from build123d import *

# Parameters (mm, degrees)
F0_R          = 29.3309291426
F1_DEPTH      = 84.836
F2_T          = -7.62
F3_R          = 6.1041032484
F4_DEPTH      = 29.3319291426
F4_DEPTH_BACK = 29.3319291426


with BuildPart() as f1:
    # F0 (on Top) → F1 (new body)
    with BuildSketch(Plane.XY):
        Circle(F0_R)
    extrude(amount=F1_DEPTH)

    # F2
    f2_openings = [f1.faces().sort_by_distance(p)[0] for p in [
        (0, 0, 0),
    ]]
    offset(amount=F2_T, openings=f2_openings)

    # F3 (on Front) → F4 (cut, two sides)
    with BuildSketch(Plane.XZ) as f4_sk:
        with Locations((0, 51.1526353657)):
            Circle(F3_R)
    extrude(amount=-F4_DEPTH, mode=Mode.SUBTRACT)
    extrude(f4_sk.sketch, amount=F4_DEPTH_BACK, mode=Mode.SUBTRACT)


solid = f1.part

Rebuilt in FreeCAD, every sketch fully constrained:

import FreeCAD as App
import Part
import Sketcher
from FreeCAD import Vector
Q = App.Units.Quantity


def faces_at(feature, points):
    """Names of the faces that lie closest to the given points."""
    faces = feature.Shape.Faces
    near = lambda p: min(range(len(faces)), key=lambda i: faces[i].distToShape(Part.Vertex(*p))[0])
    return sorted({f"Face{near(p) + 1}" for p in points})

doc = App.newDocument("Part")
params = doc.addObject("Spreadsheet::Sheet", "Params")
for row, (alias, value) in enumerate([
    ("pad1_length", "3.34 in"),
    ("thickness_wall", "0.3 in"),
], start=1):
    params.set(f"A{row}", alias)
    params.set(f"B{row}", "=" + value)
    params.setAlias(f"B{row}", alias)

body = doc.addObject("PartDesign::Body", "Body")

# Sketch on XY plane
sketch1 = body.newObject("Sketcher::SketchObject", "Sketch")
sketch1.AttachmentSupport = (doc.getObject("XY_Plane"), [""])
sketch1.MapMode = "FlatFace"
sketch1.addGeometry(Part.Circle(Vector(0, 0, 0), Vector(0, 0, 1), 29), False)
sketch1.addConstraint([
    Sketcher.Constraint("Coincident", 0, 3, -1, 1),
    Sketcher.Constraint("Diameter", 0, Q("58.661858 mm")),
])
pad1 = body.newObject("PartDesign::Pad", "Pad")
pad1.Profile = sketch1
pad1.setExpression("Length", "Params.pad1_length")
doc.recompute()

thickness = body.newObject("PartDesign::Thickness", "Thickness")
thickness.Base = (pad1, faces_at(pad1, [(0, 0, 0)]))
thickness.setExpression("Value", "Params.thickness_wall")
thickness.Reversed = True
thickness.Join = "Arc"

# Sketch on XZ plane
sketch2 = body.newObject("Sketcher::SketchObject", "Sketch001")
sketch2.AttachmentSupport = (doc.getObject("XZ_Plane"), [""])
sketch2.MapMode = "FlatFace"
sketch2.addGeometry(Part.Circle(Vector(0, 51, 0), Vector(0, 0, 1), 6), False)
sketch2.addConstraint([
    Sketcher.Constraint("PointOnObject", 0, 3, -2),
    Sketcher.Constraint("Diameter", 0, Q("12.208206 mm")),
    Sketcher.Constraint("DistanceY", -1, 1, 0, 3, Q("51.152635 mm")),
])
pocket1 = body.newObject("PartDesign::Pocket", "Pocket")
pocket1.Profile = sketch2
pocket1.Type = "ThroughAll"
pocket1.Midplane = True

doc.recompute()
